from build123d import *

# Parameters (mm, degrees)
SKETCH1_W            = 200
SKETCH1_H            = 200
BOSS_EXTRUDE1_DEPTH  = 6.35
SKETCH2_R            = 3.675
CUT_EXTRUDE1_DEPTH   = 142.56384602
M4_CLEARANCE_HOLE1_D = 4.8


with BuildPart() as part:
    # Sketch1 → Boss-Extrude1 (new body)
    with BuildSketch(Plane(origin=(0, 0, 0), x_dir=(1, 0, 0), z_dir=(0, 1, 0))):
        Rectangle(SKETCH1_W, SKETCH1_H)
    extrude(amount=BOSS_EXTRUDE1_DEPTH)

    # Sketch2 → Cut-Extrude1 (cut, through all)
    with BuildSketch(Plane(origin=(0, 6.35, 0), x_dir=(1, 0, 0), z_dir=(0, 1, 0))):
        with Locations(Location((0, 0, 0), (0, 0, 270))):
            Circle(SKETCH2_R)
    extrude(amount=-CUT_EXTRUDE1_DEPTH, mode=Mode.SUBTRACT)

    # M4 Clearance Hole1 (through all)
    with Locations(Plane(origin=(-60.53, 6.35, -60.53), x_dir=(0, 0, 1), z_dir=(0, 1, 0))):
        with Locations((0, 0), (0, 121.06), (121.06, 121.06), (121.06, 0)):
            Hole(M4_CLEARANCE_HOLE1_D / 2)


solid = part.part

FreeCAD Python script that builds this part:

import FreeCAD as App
import Part
import Sketcher
from FreeCAD import Vector


def add_polygon(sketch, points):
    """Adds a closed chain of lines whose ends are joined by coincident constraints."""
    first, n = sketch.GeometryCount, len(points)
    for a, b in zip(points, points[1:] + points[:1]):
        sketch.addGeometry(Part.LineSegment(App.Vector(*a, 0), App.Vector(*b, 0)), False)
    for i in range(n):
        sketch.addConstraint(Sketcher.Constraint("Coincident", first + i, 2, first + (i + 1) % n, 1))

doc = App.newDocument("Part")
body = doc.addObject("PartDesign::Body", "Body")

# Sketch on XZ plane
sketch1 = body.newObject("Sketcher::SketchObject", "Sketch")
sketch1.AttachmentSupport = (doc.getObject("XZ_Plane"), [""])
sketch1.MapMode = "FlatFace"
add_polygon(sketch1, [(-100, -100), (-100, 100), (100, 100), (100, -100)])  # lines 0-3
sketch1.addConstraint([
    Sketcher.Constraint("Vertical", 0),
    Sketcher.Constraint("Horizontal", 1),
    Sketcher.Constraint("Vertical", 2),
    Sketcher.Constraint("Horizontal", 3),
    Sketcher.Constraint("Symmetric", 0, 2, 2, 2, -1, 1),
    Sketcher.Constraint("Equal", 3, 0),
    Sketcher.Constraint("DistanceX", 1, 1, 1, 2, 200.0),
])
pad1 = body.newObject("PartDesign::Pad", "Pad")
pad1.Profile = sketch1
pad1.Length = 6.35
pad1.Reversed = True

# Sketch on XZ plane
sketch2 = body.newObject("Sketcher::SketchObject", "Sketch001")
sketch2.AttachmentSupport = (doc.getObject("XZ_Plane"), [""])
sketch2.MapMode = "FlatFace"
sketch2.AttachmentOffset = App.Placement(Vector(0, 0, -6.35), App.Rotation())
sketch2.addGeometry(Part.Circle(Vector(0, 0, 0), Vector(0, 0, 1), 3.7), False)
sketch2.addConstraint([
    Sketcher.Constraint("Coincident", 0, 3, -1, 1),
    Sketcher.Constraint("Diameter", 0, 7.35),
])
pocket1 = body.newObject("PartDesign::Pocket", "Pocket")
pocket1.Profile = sketch2
pocket1.Type = "ThroughAll"
pocket1.Reversed = True

# Sketch on XZ plane
sketch3 = body.newObject("Sketcher::SketchObject", "Sketch002")
sketch3.AttachmentSupport = (doc.getObject("XZ_Plane"), [""])
sketch3.MapMode = "FlatFace"
sketch3.AttachmentOffset = App.Placement(Vector(0, 0, -6.35), App.Rotation())
sketch3.addGeometry([
    Part.Circle(Vector(-60.5, -60.5, 0), Vector(0, 0, 1), 2.4),
    Part.Circle(Vector(60.5, -60.5, 0), Vector(0, 0, 1), 2.4),
    Part.Circle(Vector(60.5, 60.5, 0), Vector(0, 0, 1), 2.4),
    Part.Circle(Vector(-60.5, 60.5, 0), Vector(0, 0, 1), 2.4),
], False)
sketch3.addConstraint([
    Sketcher.Constraint("Equal", 0, 1),
    Sketcher.Constraint("Equal", 1, 2),
    Sketcher.Constraint("Equal", 2, 3),
    Sketcher.Constraint("Symmetric", 0, 3, 2, 3, -1, 1),
    Sketcher.Constraint("Symmetric", 1, 3, 3, 3, -1, 1),
    Sketcher.Constraint("Symmetric", 0, 3, 1, 3, -2),
    Sketcher.Constraint("Diameter", 0, 4.8),
    Sketcher.Constraint("DistanceX", 0, 3, -1, 1, 60.53),
    Sketcher.Constraint("DistanceY", 0, 3, -1, 1, 60.53),
])
doc.recompute()
hole = body.newObject("PartDesign::Hole", "Hole")
hole.Profile = sketch3
hole.ThreadType = "None"
hole.Diameter = 4.8
hole.DepthType = "ThroughAll"
hole.Reversed = True

doc.recompute()
